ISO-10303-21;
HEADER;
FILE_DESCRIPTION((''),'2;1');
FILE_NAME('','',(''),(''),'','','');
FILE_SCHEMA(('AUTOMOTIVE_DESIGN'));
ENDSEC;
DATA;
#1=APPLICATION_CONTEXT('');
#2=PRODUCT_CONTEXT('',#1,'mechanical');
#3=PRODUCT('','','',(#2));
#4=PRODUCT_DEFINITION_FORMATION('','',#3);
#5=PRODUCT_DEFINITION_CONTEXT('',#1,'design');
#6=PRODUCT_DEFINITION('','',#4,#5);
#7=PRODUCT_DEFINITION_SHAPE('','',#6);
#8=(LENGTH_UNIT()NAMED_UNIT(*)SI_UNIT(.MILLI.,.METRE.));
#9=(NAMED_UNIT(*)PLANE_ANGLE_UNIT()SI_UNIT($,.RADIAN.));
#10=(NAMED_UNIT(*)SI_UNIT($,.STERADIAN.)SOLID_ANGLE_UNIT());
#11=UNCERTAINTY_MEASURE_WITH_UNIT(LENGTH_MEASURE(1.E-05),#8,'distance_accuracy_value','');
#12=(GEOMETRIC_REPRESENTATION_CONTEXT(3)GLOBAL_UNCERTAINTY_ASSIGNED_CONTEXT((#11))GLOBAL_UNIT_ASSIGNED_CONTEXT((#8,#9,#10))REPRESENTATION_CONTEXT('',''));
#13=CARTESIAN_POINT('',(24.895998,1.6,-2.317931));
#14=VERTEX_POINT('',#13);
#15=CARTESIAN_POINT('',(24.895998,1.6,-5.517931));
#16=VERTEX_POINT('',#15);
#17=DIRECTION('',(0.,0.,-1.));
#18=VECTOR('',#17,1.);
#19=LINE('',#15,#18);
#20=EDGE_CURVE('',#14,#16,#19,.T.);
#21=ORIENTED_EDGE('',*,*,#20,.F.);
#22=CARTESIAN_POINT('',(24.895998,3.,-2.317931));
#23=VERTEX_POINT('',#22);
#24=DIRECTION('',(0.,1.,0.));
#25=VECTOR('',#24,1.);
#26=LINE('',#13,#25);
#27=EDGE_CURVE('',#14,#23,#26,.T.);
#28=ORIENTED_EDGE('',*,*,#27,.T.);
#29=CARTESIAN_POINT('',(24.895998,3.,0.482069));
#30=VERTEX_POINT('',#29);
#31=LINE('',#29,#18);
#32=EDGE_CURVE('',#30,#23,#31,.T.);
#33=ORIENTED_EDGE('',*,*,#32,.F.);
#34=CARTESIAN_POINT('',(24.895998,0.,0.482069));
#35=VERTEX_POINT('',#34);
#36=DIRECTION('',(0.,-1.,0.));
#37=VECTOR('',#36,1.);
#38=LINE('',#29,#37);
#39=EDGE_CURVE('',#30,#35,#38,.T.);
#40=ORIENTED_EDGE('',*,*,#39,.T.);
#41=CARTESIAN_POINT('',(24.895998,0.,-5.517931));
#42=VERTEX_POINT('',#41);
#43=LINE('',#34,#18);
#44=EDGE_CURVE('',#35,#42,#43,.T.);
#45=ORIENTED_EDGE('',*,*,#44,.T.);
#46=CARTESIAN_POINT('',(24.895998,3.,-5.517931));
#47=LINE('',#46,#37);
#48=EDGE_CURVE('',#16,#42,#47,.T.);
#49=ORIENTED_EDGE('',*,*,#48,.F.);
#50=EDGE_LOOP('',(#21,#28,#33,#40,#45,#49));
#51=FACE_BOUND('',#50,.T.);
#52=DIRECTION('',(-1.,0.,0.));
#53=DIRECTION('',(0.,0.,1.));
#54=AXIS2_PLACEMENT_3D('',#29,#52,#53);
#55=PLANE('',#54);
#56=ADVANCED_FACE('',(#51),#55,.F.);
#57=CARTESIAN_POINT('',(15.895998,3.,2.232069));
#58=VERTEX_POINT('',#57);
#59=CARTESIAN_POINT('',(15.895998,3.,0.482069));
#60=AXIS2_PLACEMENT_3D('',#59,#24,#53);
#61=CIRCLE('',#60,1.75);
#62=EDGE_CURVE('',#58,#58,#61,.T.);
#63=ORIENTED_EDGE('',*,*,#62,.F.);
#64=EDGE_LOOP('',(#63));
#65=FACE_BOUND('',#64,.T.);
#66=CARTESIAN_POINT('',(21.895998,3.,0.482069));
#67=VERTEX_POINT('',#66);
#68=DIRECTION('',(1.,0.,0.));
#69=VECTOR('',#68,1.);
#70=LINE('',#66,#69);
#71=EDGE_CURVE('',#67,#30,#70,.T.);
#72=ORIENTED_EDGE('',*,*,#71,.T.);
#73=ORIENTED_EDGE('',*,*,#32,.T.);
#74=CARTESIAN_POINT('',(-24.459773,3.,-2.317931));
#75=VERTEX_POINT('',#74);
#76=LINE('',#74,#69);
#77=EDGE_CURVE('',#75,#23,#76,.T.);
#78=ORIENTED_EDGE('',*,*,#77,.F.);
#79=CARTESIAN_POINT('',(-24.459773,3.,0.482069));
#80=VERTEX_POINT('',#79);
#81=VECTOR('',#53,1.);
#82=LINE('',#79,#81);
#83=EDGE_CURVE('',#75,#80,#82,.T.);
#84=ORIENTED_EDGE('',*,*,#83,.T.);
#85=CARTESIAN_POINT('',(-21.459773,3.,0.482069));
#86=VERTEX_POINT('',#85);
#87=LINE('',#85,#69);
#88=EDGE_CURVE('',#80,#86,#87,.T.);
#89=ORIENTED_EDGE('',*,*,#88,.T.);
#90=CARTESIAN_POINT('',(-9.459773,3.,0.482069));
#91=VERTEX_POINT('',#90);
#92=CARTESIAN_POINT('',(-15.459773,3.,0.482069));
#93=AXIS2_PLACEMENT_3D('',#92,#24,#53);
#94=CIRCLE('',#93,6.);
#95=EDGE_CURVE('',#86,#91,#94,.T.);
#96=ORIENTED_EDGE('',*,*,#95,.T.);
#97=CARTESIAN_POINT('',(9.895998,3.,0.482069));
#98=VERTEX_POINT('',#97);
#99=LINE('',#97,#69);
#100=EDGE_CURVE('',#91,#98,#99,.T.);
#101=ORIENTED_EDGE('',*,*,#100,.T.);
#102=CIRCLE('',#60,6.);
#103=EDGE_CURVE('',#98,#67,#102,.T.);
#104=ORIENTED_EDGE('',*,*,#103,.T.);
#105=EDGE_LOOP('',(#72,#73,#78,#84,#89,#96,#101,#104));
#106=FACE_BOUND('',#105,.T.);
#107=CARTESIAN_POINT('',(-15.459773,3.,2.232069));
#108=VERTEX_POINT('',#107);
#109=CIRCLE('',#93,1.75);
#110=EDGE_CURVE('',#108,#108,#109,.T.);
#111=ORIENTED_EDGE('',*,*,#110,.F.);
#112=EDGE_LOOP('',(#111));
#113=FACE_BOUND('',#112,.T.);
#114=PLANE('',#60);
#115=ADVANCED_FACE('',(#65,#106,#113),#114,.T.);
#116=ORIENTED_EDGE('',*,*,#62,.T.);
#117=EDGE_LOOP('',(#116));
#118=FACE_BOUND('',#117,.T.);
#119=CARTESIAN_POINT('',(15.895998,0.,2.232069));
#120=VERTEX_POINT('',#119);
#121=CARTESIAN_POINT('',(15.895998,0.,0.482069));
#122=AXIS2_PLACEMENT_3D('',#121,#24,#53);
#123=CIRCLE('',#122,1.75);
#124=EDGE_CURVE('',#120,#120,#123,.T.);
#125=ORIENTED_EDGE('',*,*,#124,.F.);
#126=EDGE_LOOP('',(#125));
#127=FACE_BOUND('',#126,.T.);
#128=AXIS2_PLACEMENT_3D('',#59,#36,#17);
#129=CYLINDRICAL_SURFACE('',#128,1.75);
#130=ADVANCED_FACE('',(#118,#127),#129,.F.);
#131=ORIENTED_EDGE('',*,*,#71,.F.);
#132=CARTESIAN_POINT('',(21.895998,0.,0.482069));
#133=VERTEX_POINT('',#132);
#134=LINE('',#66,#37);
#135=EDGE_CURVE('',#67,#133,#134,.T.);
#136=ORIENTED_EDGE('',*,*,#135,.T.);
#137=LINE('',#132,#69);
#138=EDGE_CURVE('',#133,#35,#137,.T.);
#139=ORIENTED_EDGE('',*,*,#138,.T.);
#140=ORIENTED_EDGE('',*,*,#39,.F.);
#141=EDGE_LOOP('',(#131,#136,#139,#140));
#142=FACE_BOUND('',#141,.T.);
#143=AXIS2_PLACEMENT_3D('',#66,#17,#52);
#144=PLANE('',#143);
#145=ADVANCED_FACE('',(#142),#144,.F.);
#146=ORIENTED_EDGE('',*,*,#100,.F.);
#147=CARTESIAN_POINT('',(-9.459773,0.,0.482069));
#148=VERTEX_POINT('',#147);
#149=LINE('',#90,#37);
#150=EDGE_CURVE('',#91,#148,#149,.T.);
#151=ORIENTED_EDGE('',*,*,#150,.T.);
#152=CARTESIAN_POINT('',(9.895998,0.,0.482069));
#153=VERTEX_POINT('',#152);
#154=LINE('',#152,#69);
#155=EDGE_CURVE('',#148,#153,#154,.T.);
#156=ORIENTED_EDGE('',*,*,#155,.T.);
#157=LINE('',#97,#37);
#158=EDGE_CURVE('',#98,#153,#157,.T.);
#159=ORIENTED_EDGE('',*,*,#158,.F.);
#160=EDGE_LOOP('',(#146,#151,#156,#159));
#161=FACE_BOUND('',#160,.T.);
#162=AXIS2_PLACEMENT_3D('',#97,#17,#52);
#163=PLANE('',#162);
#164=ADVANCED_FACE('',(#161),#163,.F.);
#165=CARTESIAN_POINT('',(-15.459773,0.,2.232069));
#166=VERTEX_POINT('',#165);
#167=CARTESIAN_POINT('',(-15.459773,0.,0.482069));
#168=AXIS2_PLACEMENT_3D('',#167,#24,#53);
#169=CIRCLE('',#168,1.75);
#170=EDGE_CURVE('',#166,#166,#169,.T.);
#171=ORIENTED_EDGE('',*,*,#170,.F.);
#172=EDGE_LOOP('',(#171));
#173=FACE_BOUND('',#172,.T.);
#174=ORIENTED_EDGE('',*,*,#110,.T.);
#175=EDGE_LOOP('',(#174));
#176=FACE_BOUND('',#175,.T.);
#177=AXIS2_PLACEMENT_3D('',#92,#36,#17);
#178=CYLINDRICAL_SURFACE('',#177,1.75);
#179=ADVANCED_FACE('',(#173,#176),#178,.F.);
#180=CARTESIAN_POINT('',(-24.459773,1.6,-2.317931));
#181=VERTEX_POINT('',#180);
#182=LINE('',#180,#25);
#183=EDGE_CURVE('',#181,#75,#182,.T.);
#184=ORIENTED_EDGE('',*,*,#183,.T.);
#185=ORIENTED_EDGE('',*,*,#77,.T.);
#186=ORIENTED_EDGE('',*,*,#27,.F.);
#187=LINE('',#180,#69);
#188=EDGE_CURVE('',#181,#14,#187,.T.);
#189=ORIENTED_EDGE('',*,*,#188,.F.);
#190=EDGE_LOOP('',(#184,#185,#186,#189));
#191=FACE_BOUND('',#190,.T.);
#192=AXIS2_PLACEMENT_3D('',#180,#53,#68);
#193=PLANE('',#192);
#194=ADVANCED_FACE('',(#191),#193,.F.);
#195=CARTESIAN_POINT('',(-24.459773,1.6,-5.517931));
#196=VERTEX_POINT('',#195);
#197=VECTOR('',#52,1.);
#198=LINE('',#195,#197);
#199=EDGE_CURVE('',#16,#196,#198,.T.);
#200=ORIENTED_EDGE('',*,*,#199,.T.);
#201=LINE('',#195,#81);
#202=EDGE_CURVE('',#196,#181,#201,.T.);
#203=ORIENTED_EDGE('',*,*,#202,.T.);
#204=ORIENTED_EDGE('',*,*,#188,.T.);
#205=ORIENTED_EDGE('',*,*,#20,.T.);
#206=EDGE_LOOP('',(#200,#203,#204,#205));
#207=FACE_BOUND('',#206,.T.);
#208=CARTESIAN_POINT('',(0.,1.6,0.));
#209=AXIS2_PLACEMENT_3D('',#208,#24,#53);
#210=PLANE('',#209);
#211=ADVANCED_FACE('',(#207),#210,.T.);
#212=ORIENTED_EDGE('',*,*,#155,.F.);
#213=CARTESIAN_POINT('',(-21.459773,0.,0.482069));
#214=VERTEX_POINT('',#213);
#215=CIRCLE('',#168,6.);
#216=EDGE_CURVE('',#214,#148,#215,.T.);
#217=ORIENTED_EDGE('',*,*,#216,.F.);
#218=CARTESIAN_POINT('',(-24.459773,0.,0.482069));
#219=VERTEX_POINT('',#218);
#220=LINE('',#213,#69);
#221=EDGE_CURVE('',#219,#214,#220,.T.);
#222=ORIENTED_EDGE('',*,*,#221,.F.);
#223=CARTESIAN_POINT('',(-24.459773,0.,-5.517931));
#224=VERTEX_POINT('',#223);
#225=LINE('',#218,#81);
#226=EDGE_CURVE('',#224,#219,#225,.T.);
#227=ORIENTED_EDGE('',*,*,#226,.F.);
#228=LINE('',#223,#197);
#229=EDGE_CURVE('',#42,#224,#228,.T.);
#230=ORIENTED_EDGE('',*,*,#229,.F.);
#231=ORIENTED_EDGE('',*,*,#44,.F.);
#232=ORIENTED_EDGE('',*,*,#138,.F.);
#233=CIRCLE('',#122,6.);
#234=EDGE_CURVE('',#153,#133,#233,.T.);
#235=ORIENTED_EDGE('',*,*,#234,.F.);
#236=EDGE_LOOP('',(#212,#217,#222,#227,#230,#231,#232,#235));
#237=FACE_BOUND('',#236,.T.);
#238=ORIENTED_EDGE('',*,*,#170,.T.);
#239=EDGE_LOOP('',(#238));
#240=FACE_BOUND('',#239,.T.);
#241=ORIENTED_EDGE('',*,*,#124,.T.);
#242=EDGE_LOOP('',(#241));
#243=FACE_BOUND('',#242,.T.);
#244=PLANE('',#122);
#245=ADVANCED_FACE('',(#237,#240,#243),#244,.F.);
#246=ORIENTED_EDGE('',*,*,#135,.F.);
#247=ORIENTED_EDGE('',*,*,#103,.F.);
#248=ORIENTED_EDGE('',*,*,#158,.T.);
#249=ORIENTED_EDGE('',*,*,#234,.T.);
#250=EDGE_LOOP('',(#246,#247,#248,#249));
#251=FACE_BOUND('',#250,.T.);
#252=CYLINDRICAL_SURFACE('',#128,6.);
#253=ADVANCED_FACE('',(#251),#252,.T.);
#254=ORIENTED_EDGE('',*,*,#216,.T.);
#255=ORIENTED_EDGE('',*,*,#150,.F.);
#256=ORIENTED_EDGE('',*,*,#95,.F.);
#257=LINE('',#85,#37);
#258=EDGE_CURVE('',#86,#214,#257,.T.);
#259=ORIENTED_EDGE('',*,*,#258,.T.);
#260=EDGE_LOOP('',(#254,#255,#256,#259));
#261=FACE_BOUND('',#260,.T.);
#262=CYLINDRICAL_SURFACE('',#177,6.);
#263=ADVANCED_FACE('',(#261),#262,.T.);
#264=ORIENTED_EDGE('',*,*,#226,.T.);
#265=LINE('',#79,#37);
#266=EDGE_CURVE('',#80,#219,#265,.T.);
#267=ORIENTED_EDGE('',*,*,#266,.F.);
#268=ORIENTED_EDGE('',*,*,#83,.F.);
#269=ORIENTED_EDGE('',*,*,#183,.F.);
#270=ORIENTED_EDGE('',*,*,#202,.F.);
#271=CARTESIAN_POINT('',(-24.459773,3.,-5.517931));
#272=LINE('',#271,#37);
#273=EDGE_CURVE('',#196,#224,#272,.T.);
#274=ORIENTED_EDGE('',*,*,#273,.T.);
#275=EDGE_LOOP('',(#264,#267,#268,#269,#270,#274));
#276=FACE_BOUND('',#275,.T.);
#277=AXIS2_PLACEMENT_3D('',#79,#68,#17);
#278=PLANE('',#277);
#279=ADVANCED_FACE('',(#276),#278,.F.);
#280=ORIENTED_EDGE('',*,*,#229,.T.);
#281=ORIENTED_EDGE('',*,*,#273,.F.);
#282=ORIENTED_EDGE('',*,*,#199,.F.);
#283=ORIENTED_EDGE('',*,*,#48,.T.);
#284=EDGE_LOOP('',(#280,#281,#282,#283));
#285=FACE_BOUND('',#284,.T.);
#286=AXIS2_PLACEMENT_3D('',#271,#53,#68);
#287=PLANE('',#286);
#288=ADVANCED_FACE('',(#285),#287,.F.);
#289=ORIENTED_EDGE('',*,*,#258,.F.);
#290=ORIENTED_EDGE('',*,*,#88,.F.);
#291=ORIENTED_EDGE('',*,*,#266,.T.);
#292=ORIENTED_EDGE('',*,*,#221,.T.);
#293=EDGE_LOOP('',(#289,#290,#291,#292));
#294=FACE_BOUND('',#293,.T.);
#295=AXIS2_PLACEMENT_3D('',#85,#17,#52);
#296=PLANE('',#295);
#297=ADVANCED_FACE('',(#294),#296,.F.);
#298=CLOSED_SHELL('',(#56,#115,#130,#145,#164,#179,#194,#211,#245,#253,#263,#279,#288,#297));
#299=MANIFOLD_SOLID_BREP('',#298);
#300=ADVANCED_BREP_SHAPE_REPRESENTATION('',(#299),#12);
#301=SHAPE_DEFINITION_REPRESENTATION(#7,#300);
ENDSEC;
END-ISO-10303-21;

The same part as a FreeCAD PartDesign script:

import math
import FreeCAD as App
import Part
import Sketcher
from FreeCAD import Vector
Q = App.Units.Quantity


def add_polygon(sketch, points):
    """Adds a closed chain of lines whose ends are joined by coincident constraints."""
    first, n = sketch.GeometryCount, len(points)
    for a, b in zip(points, points[1:] + points[:1]):
        sketch.addGeometry(Part.LineSegment(App.Vector(*a, 0), App.Vector(*b, 0)), False)
    for i in range(n):
        sketch.addConstraint(Sketcher.Constraint("Coincident", first + i, 2, first + (i + 1) % n, 1))

doc = App.newDocument("Part")
params = doc.addObject("Spreadsheet::Sheet", "Params")
for row, (alias, value) in enumerate([
    ("sketch1_radius", "6 mm"),
    ("sketch1_diameter", "3.5 mm"),
    ("sketch1_width", "3 mm"),
    ("sketch1_height", "6 mm"),
    ("pad1_length", "3 mm"),
    ("sketch2_height", "3.2 mm"),
    ("pocket1_length", "1.4 mm"),
], start=1):
    params.set(f"A{row}", alias)
    params.set(f"B{row}", "=" + value)
    params.setAlias(f"B{row}", alias)

body = doc.addObject("PartDesign::Body", "Body")

sketch1 = doc.addObject("Sketcher::SketchObject", "Sketch")
body.addObject(sketch1)
sketch1.AttachmentSupport = (doc.XZ_Plane, [""])
sketch1.MapMode = "FlatFace"
sketch1.addGeometry([
    Part.LineSegment(Vector(24.9, -5.5, 0), Vector(-24.5, -5.5, 0)),
    Part.LineSegment(Vector(-24.5, -5.5, 0), Vector(-24.5, 0.5, 0)),
    Part.LineSegment(Vector(-24.5, 0.5, 0), Vector(-21.5, 0.5, 0)),
    Part.ArcOfCircle(Part.Circle(Vector(-15.5, 0.5, 0), Vector(0, 0, 1), 6), math.radians(0), math.radians(180)),
    Part.LineSegment(Vector(-9.5, 0.5, 0), Vector(9.9, 0.5, 0)),
    Part.ArcOfCircle(Part.Circle(Vector(15.9, 0.5, 0), Vector(0, 0, 1), 6), math.radians(0), math.radians(180)),
    Part.LineSegment(Vector(21.9, 0.5, 0), Vector(24.9, 0.5, 0)),
    Part.LineSegment(Vector(24.9, 0.5, 0), Vector(24.9, -5.5, 0)),
    Part.Circle(Vector(15.9, 0.5, 0), Vector(0, 0, 1), 1.8),
    Part.Circle(Vector(-15.5, 0.5, 0), Vector(0, 0, 1), 1.8),
], False)
sketch1.addConstraint([
    Sketcher.Constraint("Coincident", 0, 2, 1, 1),
    Sketcher.Constraint("Coincident", 1, 2, 2, 1),
    Sketcher.Constraint("Coincident", 2, 2, 3, 2),
    Sketcher.Constraint("Coincident", 3, 1, 4, 1),
    Sketcher.Constraint("Coincident", 4, 2, 5, 2),
    Sketcher.Constraint("Coincident", 5, 1, 6, 1),
    Sketcher.Constraint("Coincident", 6, 2, 7, 1),
    Sketcher.Constraint("Coincident", 7, 2, 0, 1),
    Sketcher.Constraint("Horizontal", 0),
    Sketcher.Constraint("Vertical", 1),
    Sketcher.Constraint("Horizontal", 2),
    Sketcher.Constraint("Horizontal", 4),
    Sketcher.Constraint("Horizontal", 6),
    Sketcher.Constraint("Vertical", 7),
    Sketcher.Constraint("Coincident", 8, 3, 5, 3),
    Sketcher.Constraint("Coincident", 9, 3, 3, 3),
    Sketcher.Constraint("Equal", 3, 5),
    Sketcher.Constraint("Equal", 8, 9),
    Sketcher.Constraint("Horizontal", 3, 3, 5, 3),
    Sketcher.Constraint("Horizontal", 9, 3, 1, 2),
    Sketcher.Constraint("Horizontal", 2, 2, 3, 1),
    Sketcher.Constraint("Horizontal", 4, 2, 5, 1),
    Sketcher.Constraint("Equal", 2, 6),
    Sketcher.Constraint("Radius", 3, Q("6 mm")),
    Sketcher.Constraint("Diameter", 8, Q("3.5 mm")),
    Sketcher.Constraint("DistanceX", 2, 1, 2, 2, Q("3 mm")),
    Sketcher.Constraint("DistanceY", 1, 1, 1, 2, Q("6 mm")),
    Sketcher.Constraint("DistanceX", -1, 1, 5, 3, Q("15.895998 mm")),
    Sketcher.Constraint("DistanceX", 0, 2, 0, 1, Q("49.355772 mm")),
    Sketcher.Constraint("DistanceY", -1, 1, 3, 3, Q("0.482069 mm")),
])
sketch1.setExpression("Constraints[23]", "Params.sketch1_radius")
sketch1.setExpression("Constraints[24]", "Params.sketch1_diameter")
sketch1.setExpression("Constraints[25]", "Params.sketch1_width")
sketch1.setExpression("Constraints[26]", "Params.sketch1_height")
pad1 = doc.addObject("PartDesign::Pad", "Pad")
body.addObject(pad1)
pad1.Profile = sketch1
pad1.setExpression("Length", "Params.pad1_length")
pad1.Reversed = True

sketch2 = doc.addObject("Sketcher::SketchObject", "Sketch001")
body.addObject(sketch2)
sketch2.AttachmentSupport = (doc.XZ_Plane, [""])
sketch2.MapMode = "FlatFace"
sketch2.AttachmentOffset = App.Placement(Vector(0, 0, -3), App.Rotation())
add_polygon(sketch2, [(-24.5, -5.5), (-24.5, -2.3), (24.9, -2.3), (24.9, -5.5)])
sketch2.addConstraint([
    Sketcher.Constraint("Vertical", 0),
    Sketcher.Constraint("Horizontal", 1),
    Sketcher.Constraint("Vertical", 2),
    Sketcher.Constraint("Horizontal", 3),
    Sketcher.Constraint("DistanceY", 0, 1, 0, 2, Q("3.2 mm")),
    Sketcher.Constraint("DistanceX", -1, 1, 1, 2, Q("24.895998 mm")),
    Sketcher.Constraint("DistanceX", 1, 1, 1, 2, Q("49.355772 mm")),
    Sketcher.Constraint("DistanceY", 0, 2, -1, 1, Q("2.317931 mm")),
])
sketch2.setExpression("Constraints[8]", "Params.sketch2_height")
pocket1 = doc.addObject("PartDesign::Pocket", "Pocket")
body.addObject(pocket1)
pocket1.Profile = sketch2
pocket1.setExpression("Length", "Params.pocket1_length")
pocket1.Reversed = True

doc.recompute()
